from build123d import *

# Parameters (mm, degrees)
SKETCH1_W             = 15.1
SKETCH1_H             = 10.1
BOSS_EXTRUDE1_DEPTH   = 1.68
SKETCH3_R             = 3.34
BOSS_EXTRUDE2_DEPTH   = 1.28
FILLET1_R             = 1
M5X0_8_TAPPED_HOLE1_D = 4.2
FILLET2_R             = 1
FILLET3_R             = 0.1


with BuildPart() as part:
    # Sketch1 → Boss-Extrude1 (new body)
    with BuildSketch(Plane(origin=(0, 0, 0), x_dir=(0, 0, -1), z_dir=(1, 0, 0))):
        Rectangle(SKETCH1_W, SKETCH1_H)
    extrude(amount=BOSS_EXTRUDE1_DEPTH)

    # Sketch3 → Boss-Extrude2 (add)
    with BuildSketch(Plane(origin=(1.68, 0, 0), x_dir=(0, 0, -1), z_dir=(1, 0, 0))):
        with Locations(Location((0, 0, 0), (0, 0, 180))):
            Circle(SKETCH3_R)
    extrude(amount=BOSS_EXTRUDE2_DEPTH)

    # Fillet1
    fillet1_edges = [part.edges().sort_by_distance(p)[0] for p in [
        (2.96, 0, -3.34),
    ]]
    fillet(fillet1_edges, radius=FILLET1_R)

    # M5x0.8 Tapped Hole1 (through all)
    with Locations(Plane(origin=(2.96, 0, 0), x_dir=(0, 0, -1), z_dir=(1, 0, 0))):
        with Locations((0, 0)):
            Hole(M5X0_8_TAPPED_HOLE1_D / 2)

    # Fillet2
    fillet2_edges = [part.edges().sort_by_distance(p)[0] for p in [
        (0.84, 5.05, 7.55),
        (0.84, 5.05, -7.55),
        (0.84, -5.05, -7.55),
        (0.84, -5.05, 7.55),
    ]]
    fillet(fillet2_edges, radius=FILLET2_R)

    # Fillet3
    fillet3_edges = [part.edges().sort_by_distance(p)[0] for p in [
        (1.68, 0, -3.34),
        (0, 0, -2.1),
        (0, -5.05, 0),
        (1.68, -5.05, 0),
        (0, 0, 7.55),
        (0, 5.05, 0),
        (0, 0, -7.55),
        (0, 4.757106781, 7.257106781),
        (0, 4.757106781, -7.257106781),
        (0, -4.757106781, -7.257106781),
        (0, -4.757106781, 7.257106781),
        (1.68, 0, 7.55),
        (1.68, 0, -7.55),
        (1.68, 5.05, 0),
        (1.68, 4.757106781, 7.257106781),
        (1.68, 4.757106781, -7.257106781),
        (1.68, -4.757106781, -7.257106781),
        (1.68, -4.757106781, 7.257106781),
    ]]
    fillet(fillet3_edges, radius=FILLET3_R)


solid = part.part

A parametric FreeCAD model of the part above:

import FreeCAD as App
import Part
import Sketcher
from FreeCAD import Vector
Q = App.Units.Quantity


def edges_at(feature, points):
    """Names of the edges that pass closest to the given points."""
    edges = feature.Shape.Edges
    near = lambda p: min(range(len(edges)), key=lambda i: edges[i].distToShape(Part.Vertex(*p))[0])
    return sorted({f"Edge{near(p) + 1}" for p in points})


def add_polygon(sketch, points):
    """Adds a closed chain of lines whose ends are joined by coincident constraints."""
    first, n = sketch.GeometryCount, len(points)
    for a, b in zip(points, points[1:] + points[:1]):
        sketch.addGeometry(Part.LineSegment(App.Vector(*a, 0), App.Vector(*b, 0)), False)
    for i in range(n):
        sketch.addConstraint(Sketcher.Constraint("Coincident", first + i, 2, first + (i + 1) % n, 1))

doc = App.newDocument("Part")
body = doc.addObject("PartDesign::Body", "Body")

# Sketch on YZ plane
sketch1 = body.newObject("Sketcher::SketchObject", "Sketch")
sketch1.AttachmentSupport = (doc.getObject("YZ_Plane"), [""])
sketch1.MapMode = "FlatFace"
add_polygon(sketch1, [(5, 8), (-5, 8), (-5, -8), (5, -8)])  # lines 0-3
sketch1.addConstraint([
    Sketcher.Constraint("Horizontal", 0),
    Sketcher.Constraint("Vertical", 1),
    Sketcher.Constraint("Horizontal", 2),
    Sketcher.Constraint("Vertical", 3),
    Sketcher.Constraint("Symmetric", 0, 2, 2, 2, -1, 1),
    Sketcher.Constraint("DistanceX", 0, 2, 0, 1, Q("10.1 mm")),
    Sketcher.Constraint("DistanceY", 1, 2, 1, 1, Q("15.1 mm")),
])
pad1 = body.newObject("PartDesign::Pad", "Pad")
pad1.Profile = sketch1
pad1.Length = 1.68

# Sketch on YZ plane
sketch2 = body.newObject("Sketcher::SketchObject", "Sketch001")
sketch2.AttachmentSupport = (doc.getObject("YZ_Plane"), [""])
sketch2.MapMode = "FlatFace"
sketch2.AttachmentOffset = App.Placement(Vector(0, 0, 1.68), App.Rotation())
sketch2.addGeometry(Part.Circle(Vector(0, 0, 0), Vector(0, 0, 1), 3.3), False)
sketch2.addConstraint([
    Sketcher.Constraint("Coincident", 0, 3, -1, 1),
    Sketcher.Constraint("Diameter", 0, Q("6.68 mm")),
])
pad2 = body.newObject("PartDesign::Pad", "Pad001")
pad2.Profile = sketch2
pad2.Length = 1.28
doc.recompute()

fillet = body.newObject("PartDesign::Fillet", "Fillet")
fillet.Base = (pad2, edges_at(pad2, [(2.96, 0, -3.34)]))
fillet.Radius = 1

# Sketch on YZ plane
sketch3 = body.newObject("Sketcher::SketchObject", "Sketch002")
sketch3.AttachmentSupport = (doc.getObject("YZ_Plane"), [""])
sketch3.MapMode = "FlatFace"
sketch3.AttachmentOffset = App.Placement(Vector(0, 0, 2.96), App.Rotation())
sketch3.addGeometry(Part.Circle(Vector(0, 0, 0), Vector(0, 0, 1), 2.1), False)
sketch3.addConstraint([
    Sketcher.Constraint("Coincident", 0, 3, -1, 1),
    Sketcher.Constraint("Diameter", 0, Q("4.2 mm")),
])
doc.recompute()
hole = body.newObject("PartDesign::Hole", "Hole")
hole.Profile = sketch3
hole.ThreadType = "None"
hole.Diameter = 4.2
hole.DepthType = "ThroughAll"
doc.recompute()

fillet2 = body.newObject("PartDesign::Fillet", "Fillet001")
fillet2.Base = (hole, edges_at(hole, [
    (0.84, 5.05, 7.55),
    (0.84, 5.05, -7.55),
    (0.84, -5.05, -7.55),
    (0.84, -5.05, 7.55),
]))
fillet2.Radius = 1
doc.recompute()

fillet3 = body.newObject("PartDesign::Fillet", "Fillet002")
fillet3.Base = (fillet2, edges_at(fillet2, [
    (1.68, 0, -3.34),
    (0, 0, -2.1),
    (0, -5.05, 0),
    (1.68, -5.05, 0),
    (0, 0, 7.55),
    (0, 5.05, 0),
    (0, 0, -7.55),
    (0, 4.757, 7.257),
    (0, 4.757, -7.257),
    (0, -4.757, -7.257),
    (0, -4.757, 7.257),
    (1.68, 0, 7.55),
    (1.68, 0, -7.55),
    (1.68, 5.05, 0),
    (1.68, 4.757, 7.257),
    (1.68, 4.757, -7.257),
    (1.68, -4.757, -7.257),
    (1.68, -4.757, 7.257),
]))
fillet3.Radius = 0.1

doc.recompute()
